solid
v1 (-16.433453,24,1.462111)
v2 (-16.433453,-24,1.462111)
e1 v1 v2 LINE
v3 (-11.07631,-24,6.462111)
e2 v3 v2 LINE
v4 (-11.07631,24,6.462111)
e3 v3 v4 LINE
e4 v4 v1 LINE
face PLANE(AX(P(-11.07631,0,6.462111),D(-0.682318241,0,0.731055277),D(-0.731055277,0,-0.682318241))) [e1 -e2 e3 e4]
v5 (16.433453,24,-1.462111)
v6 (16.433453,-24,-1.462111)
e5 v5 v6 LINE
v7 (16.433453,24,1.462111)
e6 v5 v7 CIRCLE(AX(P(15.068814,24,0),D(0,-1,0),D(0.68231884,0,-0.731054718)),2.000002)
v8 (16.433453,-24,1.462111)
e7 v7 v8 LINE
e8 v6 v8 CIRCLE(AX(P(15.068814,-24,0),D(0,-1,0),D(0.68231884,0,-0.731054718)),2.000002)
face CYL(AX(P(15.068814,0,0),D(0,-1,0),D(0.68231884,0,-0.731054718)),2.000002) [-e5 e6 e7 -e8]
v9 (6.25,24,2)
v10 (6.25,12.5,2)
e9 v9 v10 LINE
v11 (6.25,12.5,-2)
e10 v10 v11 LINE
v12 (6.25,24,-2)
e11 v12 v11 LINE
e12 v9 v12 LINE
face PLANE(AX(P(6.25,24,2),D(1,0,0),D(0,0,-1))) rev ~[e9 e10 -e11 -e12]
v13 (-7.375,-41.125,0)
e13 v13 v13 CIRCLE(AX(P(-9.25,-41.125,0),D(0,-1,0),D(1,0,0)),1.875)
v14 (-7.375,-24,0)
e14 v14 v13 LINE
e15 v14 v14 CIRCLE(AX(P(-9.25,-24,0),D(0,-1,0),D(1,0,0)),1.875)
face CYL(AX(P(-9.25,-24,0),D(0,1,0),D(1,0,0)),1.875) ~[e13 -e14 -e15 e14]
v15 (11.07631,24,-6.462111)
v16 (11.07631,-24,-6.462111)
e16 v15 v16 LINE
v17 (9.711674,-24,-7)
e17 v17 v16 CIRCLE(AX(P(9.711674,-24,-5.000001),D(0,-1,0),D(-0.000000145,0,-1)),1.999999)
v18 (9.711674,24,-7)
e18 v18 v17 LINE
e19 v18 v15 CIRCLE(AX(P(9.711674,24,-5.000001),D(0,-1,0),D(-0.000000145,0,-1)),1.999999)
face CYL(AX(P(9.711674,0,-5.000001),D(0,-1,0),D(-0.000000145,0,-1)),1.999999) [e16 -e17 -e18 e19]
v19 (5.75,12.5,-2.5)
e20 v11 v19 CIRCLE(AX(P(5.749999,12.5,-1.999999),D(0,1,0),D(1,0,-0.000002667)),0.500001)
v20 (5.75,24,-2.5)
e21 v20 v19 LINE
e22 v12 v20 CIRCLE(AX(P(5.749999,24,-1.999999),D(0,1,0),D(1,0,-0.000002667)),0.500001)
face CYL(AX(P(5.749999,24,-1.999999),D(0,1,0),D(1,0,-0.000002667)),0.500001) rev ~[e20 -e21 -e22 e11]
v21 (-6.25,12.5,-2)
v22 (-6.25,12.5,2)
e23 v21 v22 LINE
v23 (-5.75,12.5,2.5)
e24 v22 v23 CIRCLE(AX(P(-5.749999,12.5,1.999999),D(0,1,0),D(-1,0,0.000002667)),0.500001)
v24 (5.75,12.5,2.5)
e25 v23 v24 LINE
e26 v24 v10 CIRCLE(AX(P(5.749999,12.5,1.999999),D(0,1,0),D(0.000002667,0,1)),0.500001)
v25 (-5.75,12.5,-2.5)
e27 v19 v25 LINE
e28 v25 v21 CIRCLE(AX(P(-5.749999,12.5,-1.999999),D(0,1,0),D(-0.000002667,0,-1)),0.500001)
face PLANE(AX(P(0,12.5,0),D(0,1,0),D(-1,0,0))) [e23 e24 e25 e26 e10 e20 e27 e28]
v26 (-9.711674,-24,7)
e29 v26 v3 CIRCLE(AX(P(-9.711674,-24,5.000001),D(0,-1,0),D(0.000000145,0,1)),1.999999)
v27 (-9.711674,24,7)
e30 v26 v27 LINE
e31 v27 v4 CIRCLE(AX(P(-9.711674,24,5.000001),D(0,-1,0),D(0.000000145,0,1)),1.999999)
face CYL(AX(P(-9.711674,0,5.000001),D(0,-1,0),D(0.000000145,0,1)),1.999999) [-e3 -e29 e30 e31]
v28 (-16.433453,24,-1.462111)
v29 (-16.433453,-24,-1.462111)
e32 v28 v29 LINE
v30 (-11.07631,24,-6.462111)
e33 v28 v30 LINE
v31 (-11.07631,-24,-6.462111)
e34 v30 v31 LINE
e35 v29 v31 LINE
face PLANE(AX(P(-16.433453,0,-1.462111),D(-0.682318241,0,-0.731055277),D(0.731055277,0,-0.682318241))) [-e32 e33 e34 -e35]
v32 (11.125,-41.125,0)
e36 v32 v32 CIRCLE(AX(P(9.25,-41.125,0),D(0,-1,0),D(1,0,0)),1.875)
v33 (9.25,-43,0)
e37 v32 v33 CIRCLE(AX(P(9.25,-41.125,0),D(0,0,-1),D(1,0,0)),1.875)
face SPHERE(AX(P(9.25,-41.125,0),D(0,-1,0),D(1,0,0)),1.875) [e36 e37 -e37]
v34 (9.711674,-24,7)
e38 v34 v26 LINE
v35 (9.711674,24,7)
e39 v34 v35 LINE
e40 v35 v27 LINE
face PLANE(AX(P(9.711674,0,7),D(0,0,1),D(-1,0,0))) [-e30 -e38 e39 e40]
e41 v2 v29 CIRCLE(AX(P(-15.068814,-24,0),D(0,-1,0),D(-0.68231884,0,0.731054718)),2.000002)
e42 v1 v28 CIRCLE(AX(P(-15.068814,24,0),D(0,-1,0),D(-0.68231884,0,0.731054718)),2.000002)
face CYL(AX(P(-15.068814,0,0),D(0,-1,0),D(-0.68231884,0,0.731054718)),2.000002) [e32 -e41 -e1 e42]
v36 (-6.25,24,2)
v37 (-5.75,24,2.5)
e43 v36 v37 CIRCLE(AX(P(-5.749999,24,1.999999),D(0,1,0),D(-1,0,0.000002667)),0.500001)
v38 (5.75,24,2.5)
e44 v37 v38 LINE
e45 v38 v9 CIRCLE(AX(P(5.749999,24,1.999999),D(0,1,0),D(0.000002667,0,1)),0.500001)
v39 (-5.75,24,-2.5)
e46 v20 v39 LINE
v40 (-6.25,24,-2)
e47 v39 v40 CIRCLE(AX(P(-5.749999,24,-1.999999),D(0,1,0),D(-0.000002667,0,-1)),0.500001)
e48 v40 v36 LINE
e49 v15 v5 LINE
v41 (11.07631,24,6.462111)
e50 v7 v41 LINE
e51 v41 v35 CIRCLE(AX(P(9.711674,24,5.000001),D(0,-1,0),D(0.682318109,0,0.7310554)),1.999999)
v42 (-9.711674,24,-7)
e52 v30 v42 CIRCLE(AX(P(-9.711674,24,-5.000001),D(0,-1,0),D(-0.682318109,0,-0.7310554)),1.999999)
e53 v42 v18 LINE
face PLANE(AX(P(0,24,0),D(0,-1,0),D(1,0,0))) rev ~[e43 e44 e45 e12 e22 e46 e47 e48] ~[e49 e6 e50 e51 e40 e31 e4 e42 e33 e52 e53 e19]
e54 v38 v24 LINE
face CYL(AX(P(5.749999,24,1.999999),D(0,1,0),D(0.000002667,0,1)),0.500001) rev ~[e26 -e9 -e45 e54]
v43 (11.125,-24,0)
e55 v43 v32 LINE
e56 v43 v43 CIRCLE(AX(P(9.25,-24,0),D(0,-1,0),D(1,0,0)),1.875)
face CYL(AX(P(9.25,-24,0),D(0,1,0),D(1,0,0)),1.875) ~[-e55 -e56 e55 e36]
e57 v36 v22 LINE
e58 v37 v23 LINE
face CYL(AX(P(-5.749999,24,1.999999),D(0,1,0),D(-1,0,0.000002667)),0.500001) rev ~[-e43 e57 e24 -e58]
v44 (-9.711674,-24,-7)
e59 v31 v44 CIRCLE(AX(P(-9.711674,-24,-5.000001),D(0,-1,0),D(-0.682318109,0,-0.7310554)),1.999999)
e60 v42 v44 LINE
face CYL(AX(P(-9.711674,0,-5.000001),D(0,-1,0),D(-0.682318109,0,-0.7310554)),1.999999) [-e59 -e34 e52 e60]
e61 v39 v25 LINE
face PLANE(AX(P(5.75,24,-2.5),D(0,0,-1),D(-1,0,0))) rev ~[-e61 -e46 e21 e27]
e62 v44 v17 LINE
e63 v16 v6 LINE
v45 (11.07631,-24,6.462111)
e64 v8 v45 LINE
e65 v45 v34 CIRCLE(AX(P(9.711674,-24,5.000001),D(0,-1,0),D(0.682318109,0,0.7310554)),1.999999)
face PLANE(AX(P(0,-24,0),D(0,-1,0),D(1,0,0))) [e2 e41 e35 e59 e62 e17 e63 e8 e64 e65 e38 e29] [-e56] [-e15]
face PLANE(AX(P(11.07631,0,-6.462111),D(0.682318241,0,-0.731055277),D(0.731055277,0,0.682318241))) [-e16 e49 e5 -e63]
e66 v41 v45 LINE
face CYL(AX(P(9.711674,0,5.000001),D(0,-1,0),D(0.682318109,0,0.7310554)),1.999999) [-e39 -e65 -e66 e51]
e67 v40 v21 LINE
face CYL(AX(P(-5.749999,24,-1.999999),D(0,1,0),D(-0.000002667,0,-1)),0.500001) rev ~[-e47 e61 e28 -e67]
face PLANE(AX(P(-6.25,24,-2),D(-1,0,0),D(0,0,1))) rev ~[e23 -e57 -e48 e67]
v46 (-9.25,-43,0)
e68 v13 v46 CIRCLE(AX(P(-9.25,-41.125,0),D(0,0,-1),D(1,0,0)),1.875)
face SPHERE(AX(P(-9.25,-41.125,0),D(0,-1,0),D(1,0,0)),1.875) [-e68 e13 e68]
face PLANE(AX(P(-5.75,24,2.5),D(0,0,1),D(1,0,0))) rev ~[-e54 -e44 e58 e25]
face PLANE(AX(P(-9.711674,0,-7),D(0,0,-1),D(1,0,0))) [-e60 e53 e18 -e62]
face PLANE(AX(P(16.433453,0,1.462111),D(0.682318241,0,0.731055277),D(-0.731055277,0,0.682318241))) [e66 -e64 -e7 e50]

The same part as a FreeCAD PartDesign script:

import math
import FreeCAD as App
import Part
import Sketcher

V = App.Vector
Q = App.Units.Quantity


def edges_at(feature, points):
    """Names of the edges that pass closest to the given points."""
    edges = feature.Shape.Edges
    near = lambda p: min(range(len(edges)), key=lambda i: edges[i].distToShape(Part.Vertex(*p))[0])
    return sorted({f"Edge{near(p) + 1}" for p in points})

doc = App.newDocument("Part")
body = doc.addObject("PartDesign::Body", "Body")

sketch1 = body.newObject("Sketcher::SketchObject", "Sketch")
sketch1.AttachmentSupport = (doc.getObject("XZ_Plane"), [""])
sketch1.MapMode = "FlatFace"
sketch1.addGeometry([
    Part.LineSegment(V(-11.1, 6.5, 0), V(-16.4, 1.5, 0)),
    Part.ArcOfCircle(Part.Circle(V(-15.1, 0, 0), V(0, 0, 1), 2), math.radians(133), math.radians(227)),
    Part.LineSegment(V(-16.4, -1.5, 0), V(-11.1, -6.5, 0)),
    Part.ArcOfCircle(Part.Circle(V(-9.7, -5, 0), V(0, 0, 1), 2), math.radians(-133), math.radians(-90)),
    Part.LineSegment(V(-9.7, -7, 0), V(9.7, -7, 0)),
    Part.ArcOfCircle(Part.Circle(V(9.7, -5, 0), V(0, 0, 1), 2), math.radians(-90), math.radians(-47)),
    Part.LineSegment(V(11.1, -6.5, 0), V(16.4, -1.5, 0)),
    Part.ArcOfCircle(Part.Circle(V(15.1, 0, 0), V(0, 0, 1), 2), math.radians(-47), math.radians(47)),
    Part.LineSegment(V(16.4, 1.5, 0), V(11.1, 6.5, 0)),
    Part.ArcOfCircle(Part.Circle(V(9.7, 5, 0), V(0, 0, 1), 2), math.radians(47), math.radians(90)),
    Part.LineSegment(V(9.7, 7, 0), V(-9.7, 7, 0)),
    Part.ArcOfCircle(Part.Circle(V(-9.7, 5, 0), V(0, 0, 1), 2), math.radians(90), math.radians(133)),
], False)
sketch1.addConstraint([
    Sketcher.Constraint("Tangent", 0, 2, 1, 1),
    Sketcher.Constraint("Tangent", 1, 2, 2, 1),
    Sketcher.Constraint("Tangent", 2, 2, 3, 1),
    Sketcher.Constraint("Tangent", 3, 2, 4, 1),
    Sketcher.Constraint("Tangent", 4, 2, 5, 1),
    Sketcher.Constraint("Tangent", 5, 2, 6, 1),
    Sketcher.Constraint("Tangent", 6, 2, 7, 1),
    Sketcher.Constraint("Tangent", 7, 2, 8, 1),
    Sketcher.Constraint("Tangent", 8, 2, 9, 1),
    Sketcher.Constraint("Tangent", 9, 2, 10, 1),
    Sketcher.Constraint("Tangent", 10, 2, 11, 1),
    Sketcher.Constraint("Tangent", 11, 2, 0, 1),
    Sketcher.Constraint("Horizontal", 4),
    Sketcher.Constraint("Horizontal", 10),
    Sketcher.Constraint("Equal", 3, 5),
    Sketcher.Constraint("Equal", 1, 7),
    Sketcher.Constraint("Equal", 5, 9),
    Sketcher.Constraint("Equal", 9, 11),
    Sketcher.Constraint("Symmetric", 1, 3, 7, 3, -1, 1),
    Sketcher.Constraint("Symmetric", 3, 3, 9, 3, -1, 1),
    Sketcher.Constraint("Symmetric", 2, 2, 5, 2, -2),
    Sketcher.Constraint("Parallel", 0, 6),
    Sketcher.Constraint("Radius", 3, Q("1.999999 mm")),
    Sketcher.Constraint("DistanceY", 3, 3, -1, 1, Q("5.000001 mm")),
    Sketcher.Constraint("DistanceY", 2, 2, 1, 2, Q("5 mm")),
    Sketcher.Constraint("DistanceX", 4, 1, 4, 2, Q("19.423348 mm")),
    Sketcher.Constraint("Distance", 0, Q("7.327959 mm")),
])
pad1 = body.newObject("PartDesign::Pad", "Pad")
pad1.Profile = sketch1
pad1.Length = 48
pad1.Midplane = True

sketch2 = body.newObject("Sketcher::SketchObject", "Sketch001")
sketch2.AttachmentSupport = (doc.getObject("XZ_Plane"), [""])
sketch2.MapMode = "FlatFace"
sketch2.AttachmentOffset = App.Placement(V(0, 0, 24), App.Rotation())
sketch2.addGeometry([
    Part.Circle(V(-9.2, 0, 0), V(0, 0, 1), 1.9),
    Part.Circle(V(9.2, 0, 0), V(0, 0, 1), 1.9),
], False)
sketch2.addConstraint([
    Sketcher.Constraint("Equal", 0, 1),
    Sketcher.Constraint("Symmetric", 0, 3, 1, 3, -1, 1),
    Sketcher.Constraint("PointOnObject", 0, 3, -1),
    Sketcher.Constraint("Diameter", 0, Q("3.75 mm")),
    Sketcher.Constraint("DistanceX", 0, 3, 1, 3, Q("18.5 mm")),
])
pad2 = body.newObject("PartDesign::Pad", "Pad001")
pad2.Profile = sketch2
pad2.Length = 19
doc.recompute()

fillet = body.newObject("PartDesign::Fillet", "Fillet")
fillet.Base = (pad2, edges_at(pad2, [(-11.125, -43, 0), (7.375, -43, 0)]))
fillet.Radius = 1.875

sketch3 = body.newObject("Sketcher::SketchObject", "Sketch002")
sketch3.AttachmentSupport = (doc.getObject("XZ_Plane"), [""])
sketch3.MapMode = "FlatFace"
sketch3.AttachmentOffset = App.Placement(V(0, 0, -24), App.Rotation())
sketch3.addGeometry([
    Part.ArcOfCircle(Part.Circle(V(-5.7, 2, 0), V(0, 0, 1), 0.5), math.radians(90), math.radians(180)),
    Part.LineSegment(V(-5.8, 2.5, 0), V(5.8, 2.5, 0)),
    Part.ArcOfCircle(Part.Circle(V(5.7, 2, 0), V(0, 0, 1), 0.5), math.radians(0), math.radians(90)),
    Part.LineSegment(V(6.2, 2, 0), V(6.2, -2, 0)),
    Part.ArcOfCircle(Part.Circle(V(5.7, -2, 0), V(0, 0, 1), 0.5), math.radians(-90), math.radians(0)),
    Part.LineSegment(V(5.8, -2.5, 0), V(-5.8, -2.5, 0)),
    Part.ArcOfCircle(Part.Circle(V(-5.7, -2, 0), V(0, 0, 1), 0.5), math.radians(-180), math.radians(-90)),
    Part.LineSegment(V(-6.2, -2, 0), V(-6.2, 2, 0)),
], False)
sketch3.addConstraint([
    Sketcher.Constraint("Coincident", 0, 1, 1, 1),
    Sketcher.Constraint("Coincident", 1, 2, 2, 2),
    Sketcher.Constraint("Coincident", 2, 1, 3, 1),
    Sketcher.Constraint("Coincident", 3, 2, 4, 2),
    Sketcher.Constraint("Coincident", 4, 1, 5, 1),
    Sketcher.Constraint("Coincident", 5, 2, 6, 2),
    Sketcher.Constraint("Coincident", 6, 1, 7, 1),
    Sketcher.Constraint("Coincident", 7, 2, 0, 2),
    Sketcher.Constraint("Horizontal", 1),
    Sketcher.Constraint("Vertical", 3),
    Sketcher.Constraint("Horizontal", 5),
    Sketcher.Constraint("Vertical", 7),
    Sketcher.Constraint("Equal", 0, 2),
    Sketcher.Constraint("Equal", 2, 4),
    Sketcher.Constraint("Equal", 4, 6),
    Sketcher.Constraint("Symmetric", 0, 3, 4, 3, -1, 1),
    Sketcher.Constraint("Horizontal", 0, 3, 2, 1),
    Sketcher.Constraint("Horizontal", 6, 3, 3, 2),
    Sketcher.Constraint("Horizontal", 3, 2, 6, 1),
    Sketcher.Constraint("Horizontal", 2, 1, 7, 2),
    Sketcher.Constraint("Vertical", 6, 3, 0, 1),
    Sketcher.Constraint("Vertical", 4, 3, 1, 2),
    Sketcher.Constraint("Vertical", 1, 2, 4, 1),
    Sketcher.Constraint("Vertical", 0, 1, 5, 2),
    Sketcher.Constraint("Radius", 0, Q("0.500001 mm")),
    Sketcher.Constraint("DistanceY", 3, 2, 3, 1, Q("4 mm")),
    Sketcher.Constraint("DistanceX", 1, 1, 1, 2, Q("11.5 mm")),
])
pocket1 = body.newObject("PartDesign::Pocket", "Pocket")
pocket1.Profile = sketch3
pocket1.Length = 11.5
pocket1.Reversed = True

doc.recompute()
